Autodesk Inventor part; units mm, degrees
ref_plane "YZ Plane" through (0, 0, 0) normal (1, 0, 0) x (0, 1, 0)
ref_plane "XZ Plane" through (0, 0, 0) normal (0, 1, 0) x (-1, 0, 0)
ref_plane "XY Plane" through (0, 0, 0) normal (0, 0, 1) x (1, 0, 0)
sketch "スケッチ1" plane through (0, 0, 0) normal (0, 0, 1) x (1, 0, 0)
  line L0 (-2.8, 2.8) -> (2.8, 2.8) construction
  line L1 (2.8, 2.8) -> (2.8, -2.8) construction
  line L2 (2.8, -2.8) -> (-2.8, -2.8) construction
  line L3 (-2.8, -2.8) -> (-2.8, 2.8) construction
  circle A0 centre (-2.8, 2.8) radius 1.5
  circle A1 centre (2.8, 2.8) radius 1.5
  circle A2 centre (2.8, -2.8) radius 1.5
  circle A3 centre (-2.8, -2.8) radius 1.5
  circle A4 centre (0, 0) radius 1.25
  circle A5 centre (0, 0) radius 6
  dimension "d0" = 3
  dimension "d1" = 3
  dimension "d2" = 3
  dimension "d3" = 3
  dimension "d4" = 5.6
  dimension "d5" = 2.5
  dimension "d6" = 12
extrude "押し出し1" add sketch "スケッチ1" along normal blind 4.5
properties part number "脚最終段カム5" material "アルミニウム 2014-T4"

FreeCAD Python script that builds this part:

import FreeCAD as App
import Part
import Sketcher

doc = App.newDocument("Part")
body = doc.addObject("PartDesign::Body", "Body")

# Sketch on XY plane
sketch1 = body.newObject("Sketcher::SketchObject", "Sketch")
sketch1.AttachmentSupport = (doc.getObject("XY_Plane"), [""])
sketch1.MapMode = "FlatFace"
sketch1.addGeometry([
    Part.Circle(App.Vector(0, 0, 0), App.Vector(0, 0, 1), 6),  # 0
    Part.Circle(App.Vector(-2.8, -2.8, 0), App.Vector(0, 0, 1), 1.5),  # 1
    Part.Circle(App.Vector(2.8, -2.8, 0), App.Vector(0, 0, 1), 1.5),  # 2
    Part.Circle(App.Vector(-2.8, 2.8, 0), App.Vector(0, 0, 1), 1.5),  # 3
    Part.Circle(App.Vector(0, 0, 0), App.Vector(0, 0, 1), 1.2),  # 4
    Part.Circle(App.Vector(2.8, 2.8, 0), App.Vector(0, 0, 1), 1.5),  # 5
], False)
sketch1.addConstraint([
    Sketcher.Constraint("Coincident", 0, 3, -1, 1),
    Sketcher.Constraint("Coincident", 4, 3, -1, 1),
    Sketcher.Constraint("Equal", 1, 2),
    Sketcher.Constraint("Equal", 2, 3),
    Sketcher.Constraint("Equal", 3, 5),
    Sketcher.Constraint("Symmetric", 2, 3, 3, 3, -1, 1),
    Sketcher.Constraint("Symmetric", 1, 3, 5, 3, -1, 1),
    Sketcher.Constraint("Symmetric", 1, 3, 2, 3, -2),
    Sketcher.Constraint("Diameter", 0, 12.0),
    Sketcher.Constraint("Diameter", 1, 3.0),
    Sketcher.Constraint("Diameter", 4, 2.5),
    Sketcher.Constraint("DistanceX", 1, 3, 2, 3, 5.6),
    Sketcher.Constraint("DistanceY", 1, 3, 3, 3, 5.6),
])
pad1 = body.newObject("PartDesign::Pad", "Pad")
pad1.Profile = sketch1
pad1.Length = 4.5

doc.recompute()
